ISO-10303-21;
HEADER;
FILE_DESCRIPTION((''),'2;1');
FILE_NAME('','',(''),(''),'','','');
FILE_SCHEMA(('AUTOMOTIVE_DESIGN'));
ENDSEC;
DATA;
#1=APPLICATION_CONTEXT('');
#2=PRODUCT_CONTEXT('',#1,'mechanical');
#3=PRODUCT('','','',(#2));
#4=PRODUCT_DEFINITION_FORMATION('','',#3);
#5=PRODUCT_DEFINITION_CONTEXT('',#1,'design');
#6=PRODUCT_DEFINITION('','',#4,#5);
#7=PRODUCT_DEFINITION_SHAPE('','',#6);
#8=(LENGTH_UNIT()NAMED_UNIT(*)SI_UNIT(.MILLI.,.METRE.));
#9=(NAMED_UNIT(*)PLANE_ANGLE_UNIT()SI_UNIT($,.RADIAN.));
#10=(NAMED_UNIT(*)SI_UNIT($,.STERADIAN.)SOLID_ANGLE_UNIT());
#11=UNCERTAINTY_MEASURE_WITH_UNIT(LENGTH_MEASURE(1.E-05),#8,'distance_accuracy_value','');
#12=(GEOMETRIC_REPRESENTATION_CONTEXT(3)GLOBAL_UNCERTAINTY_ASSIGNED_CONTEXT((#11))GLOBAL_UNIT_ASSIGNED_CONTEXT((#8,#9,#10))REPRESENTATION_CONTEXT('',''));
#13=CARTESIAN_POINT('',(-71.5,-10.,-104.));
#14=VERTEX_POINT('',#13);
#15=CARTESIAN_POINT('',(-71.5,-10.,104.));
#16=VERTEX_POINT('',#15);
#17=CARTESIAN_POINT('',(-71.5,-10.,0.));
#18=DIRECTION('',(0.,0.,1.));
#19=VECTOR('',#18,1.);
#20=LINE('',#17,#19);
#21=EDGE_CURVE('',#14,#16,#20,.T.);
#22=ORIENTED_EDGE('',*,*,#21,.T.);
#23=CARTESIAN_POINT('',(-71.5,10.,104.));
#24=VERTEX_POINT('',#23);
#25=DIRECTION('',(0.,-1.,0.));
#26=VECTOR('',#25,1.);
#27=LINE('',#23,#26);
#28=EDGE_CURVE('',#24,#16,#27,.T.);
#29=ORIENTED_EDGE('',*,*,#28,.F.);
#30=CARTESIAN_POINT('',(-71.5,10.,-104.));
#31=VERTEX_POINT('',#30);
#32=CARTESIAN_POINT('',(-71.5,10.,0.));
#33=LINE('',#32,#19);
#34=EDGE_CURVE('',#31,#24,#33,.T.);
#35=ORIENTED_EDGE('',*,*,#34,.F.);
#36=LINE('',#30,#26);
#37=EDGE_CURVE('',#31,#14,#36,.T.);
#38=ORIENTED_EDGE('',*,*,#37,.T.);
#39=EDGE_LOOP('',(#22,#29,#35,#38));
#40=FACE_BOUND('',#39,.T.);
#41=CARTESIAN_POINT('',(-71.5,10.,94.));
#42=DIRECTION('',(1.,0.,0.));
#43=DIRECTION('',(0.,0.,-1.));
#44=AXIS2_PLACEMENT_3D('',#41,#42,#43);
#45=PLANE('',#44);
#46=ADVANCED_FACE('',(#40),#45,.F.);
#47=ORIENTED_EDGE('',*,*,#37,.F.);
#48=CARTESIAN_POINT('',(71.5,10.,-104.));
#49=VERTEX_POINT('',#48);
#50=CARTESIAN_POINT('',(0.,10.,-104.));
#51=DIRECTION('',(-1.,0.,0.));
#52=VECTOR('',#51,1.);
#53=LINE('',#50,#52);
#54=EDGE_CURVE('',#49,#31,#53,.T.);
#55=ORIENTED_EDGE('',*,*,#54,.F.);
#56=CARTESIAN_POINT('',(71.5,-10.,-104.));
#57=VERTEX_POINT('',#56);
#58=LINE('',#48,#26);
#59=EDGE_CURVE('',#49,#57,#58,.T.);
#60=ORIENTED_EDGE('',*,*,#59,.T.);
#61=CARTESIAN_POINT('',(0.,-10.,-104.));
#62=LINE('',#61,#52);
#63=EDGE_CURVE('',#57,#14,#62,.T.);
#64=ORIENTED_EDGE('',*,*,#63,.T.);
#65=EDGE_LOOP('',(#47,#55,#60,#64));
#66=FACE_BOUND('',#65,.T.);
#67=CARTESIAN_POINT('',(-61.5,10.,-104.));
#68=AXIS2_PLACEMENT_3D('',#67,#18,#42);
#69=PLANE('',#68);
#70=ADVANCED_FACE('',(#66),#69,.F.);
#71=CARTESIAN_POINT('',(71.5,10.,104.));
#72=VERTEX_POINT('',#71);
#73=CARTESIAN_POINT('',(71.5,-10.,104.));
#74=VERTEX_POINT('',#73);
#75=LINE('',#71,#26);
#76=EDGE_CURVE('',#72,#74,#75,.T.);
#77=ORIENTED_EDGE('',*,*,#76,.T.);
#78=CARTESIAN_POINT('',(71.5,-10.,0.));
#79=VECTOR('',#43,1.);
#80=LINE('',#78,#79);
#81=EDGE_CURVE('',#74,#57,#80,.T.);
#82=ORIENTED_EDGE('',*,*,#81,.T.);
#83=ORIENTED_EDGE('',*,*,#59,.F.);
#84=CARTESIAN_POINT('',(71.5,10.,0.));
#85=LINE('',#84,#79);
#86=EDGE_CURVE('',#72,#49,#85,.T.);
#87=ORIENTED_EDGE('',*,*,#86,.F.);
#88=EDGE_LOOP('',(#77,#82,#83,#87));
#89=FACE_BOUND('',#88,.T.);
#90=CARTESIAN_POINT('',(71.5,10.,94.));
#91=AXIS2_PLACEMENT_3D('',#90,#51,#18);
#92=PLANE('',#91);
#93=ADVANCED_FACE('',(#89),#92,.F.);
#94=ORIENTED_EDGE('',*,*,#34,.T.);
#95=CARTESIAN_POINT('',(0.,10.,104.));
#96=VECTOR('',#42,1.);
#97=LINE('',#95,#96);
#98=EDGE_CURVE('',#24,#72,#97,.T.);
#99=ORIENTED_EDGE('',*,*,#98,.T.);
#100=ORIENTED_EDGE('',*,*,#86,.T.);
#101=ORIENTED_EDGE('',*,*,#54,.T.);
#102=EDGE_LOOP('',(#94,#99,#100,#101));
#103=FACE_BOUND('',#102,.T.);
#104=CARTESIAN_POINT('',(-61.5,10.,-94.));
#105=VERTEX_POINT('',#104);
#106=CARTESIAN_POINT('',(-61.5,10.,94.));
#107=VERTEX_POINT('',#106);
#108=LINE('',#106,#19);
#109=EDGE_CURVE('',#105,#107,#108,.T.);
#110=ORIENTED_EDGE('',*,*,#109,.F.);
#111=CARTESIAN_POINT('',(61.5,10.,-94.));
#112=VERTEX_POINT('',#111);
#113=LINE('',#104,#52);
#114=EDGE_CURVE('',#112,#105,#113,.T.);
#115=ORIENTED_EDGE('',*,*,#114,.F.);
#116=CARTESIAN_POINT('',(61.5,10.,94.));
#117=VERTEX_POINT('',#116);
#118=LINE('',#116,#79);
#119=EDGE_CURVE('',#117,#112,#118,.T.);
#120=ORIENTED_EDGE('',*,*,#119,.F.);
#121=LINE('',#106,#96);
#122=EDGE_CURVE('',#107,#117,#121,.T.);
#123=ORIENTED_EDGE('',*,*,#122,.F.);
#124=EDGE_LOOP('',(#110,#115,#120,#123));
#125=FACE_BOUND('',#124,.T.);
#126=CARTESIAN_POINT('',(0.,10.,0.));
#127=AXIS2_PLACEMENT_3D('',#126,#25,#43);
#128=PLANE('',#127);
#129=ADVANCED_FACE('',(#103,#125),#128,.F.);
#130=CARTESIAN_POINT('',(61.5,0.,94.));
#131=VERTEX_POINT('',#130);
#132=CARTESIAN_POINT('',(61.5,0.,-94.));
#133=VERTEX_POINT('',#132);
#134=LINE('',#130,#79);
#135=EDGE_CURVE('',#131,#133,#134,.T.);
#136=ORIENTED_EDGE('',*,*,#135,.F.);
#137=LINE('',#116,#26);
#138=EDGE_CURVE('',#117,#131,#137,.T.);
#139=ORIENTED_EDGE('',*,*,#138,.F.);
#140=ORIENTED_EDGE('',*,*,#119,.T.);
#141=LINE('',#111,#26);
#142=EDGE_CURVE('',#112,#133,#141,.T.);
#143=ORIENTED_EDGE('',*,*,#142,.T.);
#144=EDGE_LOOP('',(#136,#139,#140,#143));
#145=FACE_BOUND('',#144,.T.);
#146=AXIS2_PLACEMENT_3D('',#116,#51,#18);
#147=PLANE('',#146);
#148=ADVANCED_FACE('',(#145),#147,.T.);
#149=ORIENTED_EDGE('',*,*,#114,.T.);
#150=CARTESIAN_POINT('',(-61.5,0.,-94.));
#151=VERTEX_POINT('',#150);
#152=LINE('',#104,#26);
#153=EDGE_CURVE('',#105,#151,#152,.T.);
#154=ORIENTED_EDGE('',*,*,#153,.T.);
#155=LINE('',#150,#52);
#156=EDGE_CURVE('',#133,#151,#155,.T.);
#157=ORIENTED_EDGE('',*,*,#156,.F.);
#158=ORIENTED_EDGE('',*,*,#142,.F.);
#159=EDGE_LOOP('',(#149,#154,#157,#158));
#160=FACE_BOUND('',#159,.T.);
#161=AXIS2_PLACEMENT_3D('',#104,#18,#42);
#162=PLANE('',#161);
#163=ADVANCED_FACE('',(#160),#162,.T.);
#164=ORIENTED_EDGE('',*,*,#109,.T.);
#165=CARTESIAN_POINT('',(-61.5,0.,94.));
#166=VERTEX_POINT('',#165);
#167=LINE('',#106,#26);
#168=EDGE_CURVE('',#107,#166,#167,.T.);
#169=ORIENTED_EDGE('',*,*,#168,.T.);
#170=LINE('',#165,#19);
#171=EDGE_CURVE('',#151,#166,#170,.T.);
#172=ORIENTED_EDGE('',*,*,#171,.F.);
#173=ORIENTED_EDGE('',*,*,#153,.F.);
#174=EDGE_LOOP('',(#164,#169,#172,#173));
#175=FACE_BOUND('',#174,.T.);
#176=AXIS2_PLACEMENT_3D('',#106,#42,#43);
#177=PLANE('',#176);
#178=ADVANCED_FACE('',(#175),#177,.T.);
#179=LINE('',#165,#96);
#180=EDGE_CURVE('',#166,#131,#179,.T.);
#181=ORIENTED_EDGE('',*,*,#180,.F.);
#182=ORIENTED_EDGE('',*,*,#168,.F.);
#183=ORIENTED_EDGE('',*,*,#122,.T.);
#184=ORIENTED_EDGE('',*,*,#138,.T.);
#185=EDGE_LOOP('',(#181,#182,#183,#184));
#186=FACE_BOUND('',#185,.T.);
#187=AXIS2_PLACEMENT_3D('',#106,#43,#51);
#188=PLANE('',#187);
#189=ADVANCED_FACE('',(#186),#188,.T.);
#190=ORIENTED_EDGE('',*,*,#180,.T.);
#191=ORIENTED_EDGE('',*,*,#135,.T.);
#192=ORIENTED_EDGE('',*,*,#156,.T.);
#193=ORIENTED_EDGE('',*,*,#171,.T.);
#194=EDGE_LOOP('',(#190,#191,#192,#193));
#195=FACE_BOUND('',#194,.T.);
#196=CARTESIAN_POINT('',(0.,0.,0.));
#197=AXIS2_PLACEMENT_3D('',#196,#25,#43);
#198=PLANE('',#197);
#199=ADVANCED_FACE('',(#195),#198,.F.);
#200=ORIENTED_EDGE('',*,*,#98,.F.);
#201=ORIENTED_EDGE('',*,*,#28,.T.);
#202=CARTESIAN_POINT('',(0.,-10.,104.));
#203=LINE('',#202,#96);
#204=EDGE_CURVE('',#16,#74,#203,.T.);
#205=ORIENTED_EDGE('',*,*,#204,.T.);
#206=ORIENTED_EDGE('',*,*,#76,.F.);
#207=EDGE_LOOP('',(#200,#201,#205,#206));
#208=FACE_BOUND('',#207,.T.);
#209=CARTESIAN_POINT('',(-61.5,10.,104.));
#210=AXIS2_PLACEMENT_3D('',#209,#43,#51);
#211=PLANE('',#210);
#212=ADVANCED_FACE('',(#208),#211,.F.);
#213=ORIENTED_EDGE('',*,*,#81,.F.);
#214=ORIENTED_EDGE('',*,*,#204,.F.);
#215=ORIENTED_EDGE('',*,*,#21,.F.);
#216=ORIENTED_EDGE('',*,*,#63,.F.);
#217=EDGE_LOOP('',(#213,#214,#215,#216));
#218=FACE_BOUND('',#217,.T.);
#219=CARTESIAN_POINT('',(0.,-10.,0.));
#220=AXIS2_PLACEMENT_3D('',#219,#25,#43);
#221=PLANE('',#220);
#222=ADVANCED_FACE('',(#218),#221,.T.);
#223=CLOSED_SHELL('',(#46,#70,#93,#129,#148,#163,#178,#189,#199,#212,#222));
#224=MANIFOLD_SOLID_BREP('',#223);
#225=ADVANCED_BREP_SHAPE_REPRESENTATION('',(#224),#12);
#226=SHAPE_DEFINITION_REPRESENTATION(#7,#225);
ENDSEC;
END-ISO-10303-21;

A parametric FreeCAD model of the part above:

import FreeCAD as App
import Part
import Sketcher
from FreeCAD import Vector
Q = App.Units.Quantity


def faces_at(feature, points):
    """Names of the faces that lie closest to the given points."""
    faces = feature.Shape.Faces
    near = lambda p: min(range(len(faces)), key=lambda i: faces[i].distToShape(Part.Vertex(*p))[0])
    return sorted({f"Face{near(p) + 1}" for p in points})


def add_polygon(sketch, points):
    """Adds a closed chain of lines whose ends are joined by coincident constraints."""
    first, n = sketch.GeometryCount, len(points)
    for a, b in zip(points, points[1:] + points[:1]):
        sketch.addGeometry(Part.LineSegment(App.Vector(*a, 0), App.Vector(*b, 0)), False)
    for i in range(n):
        sketch.addConstraint(Sketcher.Constraint("Coincident", first + i, 2, first + (i + 1) % n, 1))

doc = App.newDocument("Part")
body = doc.addObject("PartDesign::Body", "Body")

# Sketch on XZ plane
sketch1 = doc.addObject("Sketcher::SketchObject", "Sketch")
body.addObject(sketch1)
sketch1.AttachmentSupport = (doc.XZ_Plane, [""])
sketch1.MapMode = "FlatFace"
add_polygon(sketch1, [(-62, -94), (-62, 94), (62, 94), (62, -94)])  # lines 0-3
sketch1.addConstraint(Sketcher.Constraint("Vertical", 0))
sketch1.addConstraint(Sketcher.Constraint("Horizontal", 1))
sketch1.addConstraint(Sketcher.Constraint("Vertical", 2))
sketch1.addConstraint(Sketcher.Constraint("Horizontal", 3))
sketch1.addConstraint(Sketcher.Constraint("Symmetric", 0, 2, 2, 2, -1, 1))
sketch1.addConstraint(Sketcher.Constraint("DistanceX", 1, 1, 1, 2, Q("123 mm")))
sketch1.addConstraint(Sketcher.Constraint("DistanceY", 0, 1, 0, 2, Q("188 mm")))
pad1 = doc.addObject("PartDesign::Pad", "Pad")
body.addObject(pad1)
pad1.Profile = sketch1
pad1.Length = 10
pad1.Reversed = True
doc.recompute()

thickness = doc.addObject("PartDesign::Thickness", "Thickness")
body.addObject(thickness)
thickness.Base = (pad1, faces_at(pad1, [(0, 10, 0)]))
thickness.Value = 10
thickness.Reversed = False
thickness.Join = "Intersection"

doc.recompute()
